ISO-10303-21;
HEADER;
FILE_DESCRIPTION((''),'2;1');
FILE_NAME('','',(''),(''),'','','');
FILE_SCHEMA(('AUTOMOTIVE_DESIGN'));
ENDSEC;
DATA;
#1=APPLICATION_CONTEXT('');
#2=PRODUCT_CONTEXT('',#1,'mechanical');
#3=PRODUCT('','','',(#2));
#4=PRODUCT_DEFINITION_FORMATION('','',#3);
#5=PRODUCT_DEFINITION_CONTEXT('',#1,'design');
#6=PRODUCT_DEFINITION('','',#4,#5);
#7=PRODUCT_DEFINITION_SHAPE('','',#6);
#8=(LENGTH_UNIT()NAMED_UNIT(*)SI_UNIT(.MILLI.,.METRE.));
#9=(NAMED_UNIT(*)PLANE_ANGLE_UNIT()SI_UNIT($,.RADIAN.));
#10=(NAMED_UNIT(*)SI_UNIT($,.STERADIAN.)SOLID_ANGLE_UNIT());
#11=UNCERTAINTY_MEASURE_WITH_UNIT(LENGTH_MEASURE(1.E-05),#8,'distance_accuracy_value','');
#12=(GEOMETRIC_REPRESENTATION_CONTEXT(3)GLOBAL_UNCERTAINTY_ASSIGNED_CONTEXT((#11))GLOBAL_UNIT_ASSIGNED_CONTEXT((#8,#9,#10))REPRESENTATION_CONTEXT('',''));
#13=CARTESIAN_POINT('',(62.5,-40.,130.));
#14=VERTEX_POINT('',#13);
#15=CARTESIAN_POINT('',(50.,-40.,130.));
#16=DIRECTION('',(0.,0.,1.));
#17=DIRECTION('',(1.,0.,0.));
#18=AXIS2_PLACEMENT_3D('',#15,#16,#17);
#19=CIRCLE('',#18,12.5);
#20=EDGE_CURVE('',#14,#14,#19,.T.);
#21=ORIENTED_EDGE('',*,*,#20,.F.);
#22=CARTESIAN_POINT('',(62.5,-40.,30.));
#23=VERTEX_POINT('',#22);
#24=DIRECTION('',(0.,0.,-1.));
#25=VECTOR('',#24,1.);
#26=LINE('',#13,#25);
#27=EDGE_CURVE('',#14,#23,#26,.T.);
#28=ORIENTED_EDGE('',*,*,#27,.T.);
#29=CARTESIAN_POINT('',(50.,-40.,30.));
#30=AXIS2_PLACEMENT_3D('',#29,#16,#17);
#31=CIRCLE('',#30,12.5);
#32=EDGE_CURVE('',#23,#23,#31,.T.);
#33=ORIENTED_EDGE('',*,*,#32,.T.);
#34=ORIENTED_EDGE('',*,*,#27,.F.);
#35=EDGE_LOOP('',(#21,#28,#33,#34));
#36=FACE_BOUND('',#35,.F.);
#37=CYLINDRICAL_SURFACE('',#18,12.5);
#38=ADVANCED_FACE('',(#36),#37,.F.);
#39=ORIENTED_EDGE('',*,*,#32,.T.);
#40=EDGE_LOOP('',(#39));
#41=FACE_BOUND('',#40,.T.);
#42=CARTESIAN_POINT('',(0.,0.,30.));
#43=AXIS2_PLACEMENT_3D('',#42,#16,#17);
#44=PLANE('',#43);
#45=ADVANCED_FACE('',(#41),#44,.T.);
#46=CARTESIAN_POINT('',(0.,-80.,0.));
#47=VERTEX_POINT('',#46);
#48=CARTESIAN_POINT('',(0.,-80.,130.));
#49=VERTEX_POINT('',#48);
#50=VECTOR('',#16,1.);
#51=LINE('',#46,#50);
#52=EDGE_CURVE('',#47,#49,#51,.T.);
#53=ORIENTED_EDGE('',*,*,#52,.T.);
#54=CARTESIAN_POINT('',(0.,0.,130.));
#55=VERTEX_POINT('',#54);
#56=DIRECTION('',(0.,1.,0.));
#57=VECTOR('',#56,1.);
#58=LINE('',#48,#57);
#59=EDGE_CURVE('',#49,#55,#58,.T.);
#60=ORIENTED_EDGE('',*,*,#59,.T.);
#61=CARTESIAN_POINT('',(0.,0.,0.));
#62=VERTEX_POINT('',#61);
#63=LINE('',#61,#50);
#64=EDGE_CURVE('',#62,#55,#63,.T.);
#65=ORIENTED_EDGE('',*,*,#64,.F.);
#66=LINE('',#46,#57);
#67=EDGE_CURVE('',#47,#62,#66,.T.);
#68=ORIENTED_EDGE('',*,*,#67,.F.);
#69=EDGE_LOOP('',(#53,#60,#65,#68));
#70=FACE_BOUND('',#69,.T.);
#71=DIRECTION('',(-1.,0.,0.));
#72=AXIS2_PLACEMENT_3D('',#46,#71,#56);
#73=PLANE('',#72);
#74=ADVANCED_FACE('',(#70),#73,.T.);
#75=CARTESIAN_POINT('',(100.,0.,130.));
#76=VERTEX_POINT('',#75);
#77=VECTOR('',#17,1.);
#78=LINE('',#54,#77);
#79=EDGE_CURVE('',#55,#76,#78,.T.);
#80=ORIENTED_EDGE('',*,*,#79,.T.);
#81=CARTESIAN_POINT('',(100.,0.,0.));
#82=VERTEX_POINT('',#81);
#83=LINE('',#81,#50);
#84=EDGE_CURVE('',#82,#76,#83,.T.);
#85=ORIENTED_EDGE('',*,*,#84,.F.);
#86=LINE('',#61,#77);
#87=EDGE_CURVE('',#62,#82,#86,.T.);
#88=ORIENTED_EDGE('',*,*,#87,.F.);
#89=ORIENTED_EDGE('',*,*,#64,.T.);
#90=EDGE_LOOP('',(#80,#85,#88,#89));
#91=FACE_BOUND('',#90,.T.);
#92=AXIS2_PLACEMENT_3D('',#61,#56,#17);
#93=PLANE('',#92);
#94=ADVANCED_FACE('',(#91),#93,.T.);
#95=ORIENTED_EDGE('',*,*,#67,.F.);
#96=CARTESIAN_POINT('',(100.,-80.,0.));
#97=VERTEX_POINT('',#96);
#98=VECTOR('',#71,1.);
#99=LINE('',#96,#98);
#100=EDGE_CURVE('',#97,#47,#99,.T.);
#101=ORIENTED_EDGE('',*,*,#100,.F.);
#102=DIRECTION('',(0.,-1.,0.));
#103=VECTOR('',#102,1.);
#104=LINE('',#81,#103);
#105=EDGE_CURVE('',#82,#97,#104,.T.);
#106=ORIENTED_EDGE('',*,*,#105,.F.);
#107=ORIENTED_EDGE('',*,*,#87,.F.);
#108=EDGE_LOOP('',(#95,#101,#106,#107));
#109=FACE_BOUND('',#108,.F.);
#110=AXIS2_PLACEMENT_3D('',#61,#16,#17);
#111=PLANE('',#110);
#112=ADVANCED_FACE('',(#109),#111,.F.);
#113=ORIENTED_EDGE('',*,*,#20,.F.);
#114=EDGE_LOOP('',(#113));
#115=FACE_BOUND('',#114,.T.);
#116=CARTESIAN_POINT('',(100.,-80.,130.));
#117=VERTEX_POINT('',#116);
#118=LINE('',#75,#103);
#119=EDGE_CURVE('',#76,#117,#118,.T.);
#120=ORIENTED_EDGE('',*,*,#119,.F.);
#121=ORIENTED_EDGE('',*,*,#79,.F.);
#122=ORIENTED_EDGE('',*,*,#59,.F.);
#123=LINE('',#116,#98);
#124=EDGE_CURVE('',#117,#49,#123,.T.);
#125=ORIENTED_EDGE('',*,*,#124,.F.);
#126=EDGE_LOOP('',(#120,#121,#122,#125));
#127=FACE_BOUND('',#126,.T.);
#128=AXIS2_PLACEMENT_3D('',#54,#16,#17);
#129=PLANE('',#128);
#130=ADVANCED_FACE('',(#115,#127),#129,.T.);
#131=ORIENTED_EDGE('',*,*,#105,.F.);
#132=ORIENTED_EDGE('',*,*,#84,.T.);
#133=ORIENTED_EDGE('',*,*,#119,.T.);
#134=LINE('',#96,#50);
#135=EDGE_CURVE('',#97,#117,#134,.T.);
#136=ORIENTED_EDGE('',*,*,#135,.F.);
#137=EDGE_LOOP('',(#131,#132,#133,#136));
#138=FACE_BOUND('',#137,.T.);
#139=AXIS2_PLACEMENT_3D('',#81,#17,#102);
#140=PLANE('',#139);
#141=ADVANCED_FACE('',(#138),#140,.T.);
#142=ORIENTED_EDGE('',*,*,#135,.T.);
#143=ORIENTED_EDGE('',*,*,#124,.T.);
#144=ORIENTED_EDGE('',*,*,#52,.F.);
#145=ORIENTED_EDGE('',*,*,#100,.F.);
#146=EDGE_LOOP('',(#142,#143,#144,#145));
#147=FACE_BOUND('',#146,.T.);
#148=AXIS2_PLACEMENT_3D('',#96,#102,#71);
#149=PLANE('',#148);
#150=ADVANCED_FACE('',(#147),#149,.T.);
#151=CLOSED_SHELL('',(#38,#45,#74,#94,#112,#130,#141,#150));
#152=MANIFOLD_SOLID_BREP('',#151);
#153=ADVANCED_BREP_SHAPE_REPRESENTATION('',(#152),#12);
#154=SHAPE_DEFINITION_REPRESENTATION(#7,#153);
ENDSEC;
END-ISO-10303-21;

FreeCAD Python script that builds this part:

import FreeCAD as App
import Part
import Sketcher
Q = App.Units.Quantity

doc = App.newDocument("Part")
params = doc.addObject("Spreadsheet::Sheet", "Params")
for row, (alias, value) in enumerate([
    ("sketch1_width", "100 mm"),
    ("sketch1_height", "80 mm"),
    ("pad1_length", "130 mm"),
    ("sketch2_diameter", "25 mm"),
    ("pocket1_length", "100 mm"),
], start=1):
    params.set(f"A{row}", alias)
    params.set(f"B{row}", "=" + value)
    params.setAlias(f"B{row}", alias)

body = doc.addObject("PartDesign::Body", "Body")

sketch1 = body.newObject("Sketcher::SketchObject", "Sketch")
sketch1.AttachmentSupport = (doc.getObject("XY_Plane"), [""])
sketch1.MapMode = "FlatFace"
sketch1.addGeometry([
    Part.LineSegment(App.Vector(100, 0, 0), App.Vector(0, 0, 0)),
    Part.LineSegment(App.Vector(0, 0, 0), App.Vector(0, -80, 0)),
    Part.LineSegment(App.Vector(0, -80, 0), App.Vector(100, -80, 0)),
    Part.LineSegment(App.Vector(100, -80, 0), App.Vector(100, 0, 0)),
], False)
sketch1.addConstraint([
    Sketcher.Constraint("Coincident", 0, 2, 1, 1),
    Sketcher.Constraint("Coincident", 1, 2, 2, 1),
    Sketcher.Constraint("Coincident", 2, 2, 3, 1),
    Sketcher.Constraint("Coincident", 3, 2, 0, 1),
    Sketcher.Constraint("Horizontal", 0),
    Sketcher.Constraint("Vertical", 1),
    Sketcher.Constraint("Horizontal", 2),
    Sketcher.Constraint("Vertical", 3),
    Sketcher.Constraint("Coincident", 0, 2, -1, 1),
    Sketcher.Constraint("DistanceX", 0, 2, 0, 1, Q("100 mm")),
    Sketcher.Constraint("DistanceY", 1, 2, 1, 1, Q("80 mm")),
])
sketch1.setExpression("Constraints[9]", "Params.sketch1_width")
sketch1.setExpression("Constraints[10]", "Params.sketch1_height")
pad1 = body.newObject("PartDesign::Pad", "Pad")
pad1.Profile = sketch1
pad1.setExpression("Length", "Params.pad1_length")

sketch2 = body.newObject("Sketcher::SketchObject", "Sketch001")
sketch2.AttachmentSupport = (doc.getObject("XY_Plane"), [""])
sketch2.MapMode = "FlatFace"
sketch2.AttachmentOffset = App.Placement(App.Vector(0, 0, 130), App.Rotation())
sketch2.addGeometry(Part.Circle(App.Vector(50, -40, 0), App.Vector(0, 0, 1), 12), False)
sketch2.addConstraint([
    Sketcher.Constraint("Diameter", 0, Q("25 mm")),
    Sketcher.Constraint("DistanceX", -1, 1, 0, 3, Q("50 mm")),
    Sketcher.Constraint("DistanceY", 0, 3, -1, 1, Q("40 mm")),
])
sketch2.setExpression("Constraints[0]", "Params.sketch2_diameter")
pocket1 = body.newObject("PartDesign::Pocket", "Pocket")
pocket1.Profile = sketch2
pocket1.setExpression("Length", "Params.pocket1_length")

doc.recompute()
